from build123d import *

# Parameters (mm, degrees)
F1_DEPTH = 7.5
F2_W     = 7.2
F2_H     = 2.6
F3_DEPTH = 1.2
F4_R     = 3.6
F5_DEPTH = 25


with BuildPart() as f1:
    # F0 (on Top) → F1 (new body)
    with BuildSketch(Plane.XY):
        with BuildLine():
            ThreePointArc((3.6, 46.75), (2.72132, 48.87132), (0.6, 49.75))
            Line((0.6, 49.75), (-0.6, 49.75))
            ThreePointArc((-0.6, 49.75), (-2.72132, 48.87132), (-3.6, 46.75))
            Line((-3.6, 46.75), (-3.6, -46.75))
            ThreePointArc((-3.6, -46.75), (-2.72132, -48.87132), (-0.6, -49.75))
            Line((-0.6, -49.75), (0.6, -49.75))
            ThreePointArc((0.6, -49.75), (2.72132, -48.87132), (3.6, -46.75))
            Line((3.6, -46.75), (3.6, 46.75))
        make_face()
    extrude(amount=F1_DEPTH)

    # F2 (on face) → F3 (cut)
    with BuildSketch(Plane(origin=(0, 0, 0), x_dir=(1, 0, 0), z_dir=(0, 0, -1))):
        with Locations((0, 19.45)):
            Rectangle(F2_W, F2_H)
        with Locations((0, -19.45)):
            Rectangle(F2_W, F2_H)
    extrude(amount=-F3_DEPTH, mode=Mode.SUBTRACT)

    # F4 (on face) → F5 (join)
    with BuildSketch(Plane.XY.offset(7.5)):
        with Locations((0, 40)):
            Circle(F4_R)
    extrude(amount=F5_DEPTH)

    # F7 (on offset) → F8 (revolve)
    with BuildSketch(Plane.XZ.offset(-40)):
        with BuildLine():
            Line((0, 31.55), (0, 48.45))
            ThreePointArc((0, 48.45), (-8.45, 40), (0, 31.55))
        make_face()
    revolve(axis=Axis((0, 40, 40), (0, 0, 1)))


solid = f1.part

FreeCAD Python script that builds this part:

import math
import FreeCAD as App
import Part
import Sketcher


def add_polygon(sketch, points):
    """Adds a closed chain of lines whose ends are joined by coincident constraints."""
    first, n = sketch.GeometryCount, len(points)
    for a, b in zip(points, points[1:] + points[:1]):
        sketch.addGeometry(Part.LineSegment(App.Vector(*a, 0), App.Vector(*b, 0)), False)
    for i in range(n):
        sketch.addConstraint(Sketcher.Constraint("Coincident", first + i, 2, first + (i + 1) % n, 1))

doc = App.newDocument("Part")
body = doc.addObject("PartDesign::Body", "Body")

# Sketch on XY plane
sketch1 = doc.addObject("Sketcher::SketchObject", "Sketch")
body.addObject(sketch1)
sketch1.AttachmentSupport = (doc.XY_Plane, [""])
sketch1.MapMode = "FlatFace"
sketch1.addGeometry([
    Part.ArcOfCircle(Part.Circle(App.Vector(0.6, 46.7, 0), App.Vector(0, 0, 1), 3), math.radians(0), math.radians(90)),  # 0
    Part.LineSegment(App.Vector(0.6, 49.8, 0), App.Vector(-0.6, 49.8, 0)),  # 1
    Part.ArcOfCircle(Part.Circle(App.Vector(-0.6, 46.7, 0), App.Vector(0, 0, 1), 3), math.radians(90), math.radians(180)),  # 2
    Part.LineSegment(App.Vector(-3.6, 46.8, 0), App.Vector(-3.6, -46.8, 0)),  # 3
    Part.ArcOfCircle(Part.Circle(App.Vector(-0.6, -46.7, 0), App.Vector(0, 0, 1), 3), math.radians(-180), math.radians(-90)),  # 4
    Part.LineSegment(App.Vector(-0.6, -49.8, 0), App.Vector(0.6, -49.8, 0)),  # 5
    Part.ArcOfCircle(Part.Circle(App.Vector(0.6, -46.7, 0), App.Vector(0, 0, 1), 3), math.radians(-90), math.radians(0)),  # 6
    Part.LineSegment(App.Vector(3.6, -46.8, 0), App.Vector(3.6, 46.8, 0)),  # 7
], False)
sketch1.addConstraint([
    Sketcher.Constraint("Tangent", 0, 2, 1, 1),
    Sketcher.Constraint("Tangent", 1, 2, 2, 1),
    Sketcher.Constraint("Tangent", 2, 2, 3, 1),
    Sketcher.Constraint("Tangent", 3, 2, 4, 1),
    Sketcher.Constraint("Tangent", 4, 2, 5, 1),
    Sketcher.Constraint("Tangent", 5, 2, 6, 1),
    Sketcher.Constraint("Tangent", 6, 2, 7, 1),
    Sketcher.Constraint("Tangent", 7, 2, 0, 1),
    Sketcher.Constraint("Horizontal", 1),
    Sketcher.Constraint("Vertical", 3),
    Sketcher.Constraint("Horizontal", 5),
    Sketcher.Constraint("Vertical", 7),
    Sketcher.Constraint("Equal", 0, 2),
    Sketcher.Constraint("Equal", 2, 4),
    Sketcher.Constraint("Equal", 4, 6),
    Sketcher.Constraint("Symmetric", 0, 3, 4, 3, -1, 1),
    Sketcher.Constraint("Radius", 0, 3.000001),
    Sketcher.Constraint("DistanceX", 1, 2, 1, 1, 1.2),
    Sketcher.Constraint("DistanceY", 3, 2, 3, 1, 93.5),
])
pad1 = doc.addObject("PartDesign::Pad", "Pad")
body.addObject(pad1)
pad1.Profile = sketch1
pad1.Length = 7.5

# Sketch on XY plane
sketch2 = doc.addObject("Sketcher::SketchObject", "Sketch001")
body.addObject(sketch2)
sketch2.AttachmentSupport = (doc.XY_Plane, [""])
sketch2.MapMode = "FlatFace"
add_polygon(sketch2, [(-3.6, -20.8), (-3.6, -18.1), (3.6, -18.1), (3.6, -20.8)])  # lines 0-3
add_polygon(sketch2, [(-3.6, 18.1), (-3.6, 20.8), (3.6, 20.8), (3.6, 18.1)])  # lines 4-7
sketch2.addConstraint([
    Sketcher.Constraint("Vertical", 0),
    Sketcher.Constraint("Horizontal", 1),
    Sketcher.Constraint("Vertical", 2),
    Sketcher.Constraint("Horizontal", 3),
    Sketcher.Constraint("Vertical", 4),
    Sketcher.Constraint("Horizontal", 5),
    Sketcher.Constraint("Vertical", 6),
    Sketcher.Constraint("Horizontal", 7),
    Sketcher.Constraint("Symmetric", 2, 2, 4, 2, -1, 1),
    Sketcher.Constraint("Symmetric", 0, 2, 6, 2, -1, 1),
    Sketcher.Constraint("Vertical", 3, 2, 4, 2),
    Sketcher.Constraint("DistanceX", 1, 1, 1, 2, 7.2),
    Sketcher.Constraint("DistanceY", 0, 1, 0, 2, 2.6),
    Sketcher.Constraint("DistanceY", 0, 2, 4, 2, 38.9),
])
pocket1 = doc.addObject("PartDesign::Pocket", "Pocket")
body.addObject(pocket1)
pocket1.Profile = sketch2
pocket1.Length = 1.2
pocket1.Reversed = True

# Sketch on XY plane
sketch3 = doc.addObject("Sketcher::SketchObject", "Sketch002")
body.addObject(sketch3)
sketch3.AttachmentSupport = (doc.XY_Plane, [""])
sketch3.MapMode = "FlatFace"
sketch3.AttachmentOffset = App.Placement(App.Vector(0, 0, 7.5), App.Rotation())
sketch3.addGeometry(Part.Circle(App.Vector(0, 40, 0), App.Vector(0, 0, 1), 3.6), False)
sketch3.addConstraint([
    Sketcher.Constraint("PointOnObject", 0, 3, -2),
    Sketcher.Constraint("Diameter", 0, 7.2),
    Sketcher.Constraint("DistanceY", -1, 1, 0, 3, 40.0),
])
pad2 = doc.addObject("PartDesign::Pad", "Pad001")
body.addObject(pad2)
pad2.Profile = sketch3
pad2.Length = 25

# Sketch on XZ plane
sketch4 = doc.addObject("Sketcher::SketchObject", "Sketch003")
body.addObject(sketch4)
sketch4.AttachmentSupport = (doc.XZ_Plane, [""])
sketch4.MapMode = "FlatFace"
sketch4.AttachmentOffset = App.Placement(App.Vector(0, 0, -40), App.Rotation())
sketch4.addGeometry([
    Part.LineSegment(App.Vector(0, 32, 0), App.Vector(0, 48, 0)),
    Part.ArcOfCircle(Part.Circle(App.Vector(0, 40, 0), App.Vector(0, 0, 1), 8), math.radians(90), math.radians(270)),
], False)
sketch4.addConstraint([
    Sketcher.Constraint("Coincident", 0, 1, 1, 2),
    Sketcher.Constraint("Coincident", 1, 1, 0, 2),
    Sketcher.Constraint("Vertical", 0),
    Sketcher.Constraint("PointOnObject", 1, 3, -2),
    Sketcher.Constraint("PointOnObject", 0, 1, -2),
    Sketcher.Constraint("Radius", 1, 8.45),
    Sketcher.Constraint("DistanceY", -1, 1, 1, 3, 40.0),
])
revolution = doc.addObject("PartDesign::Revolution", "Revolution")
body.addObject(revolution)
revolution.Profile = sketch4
revolution.ReferenceAxis = (sketch4, ["V_Axis"])
revolution.Angle = 360

doc.recompute()
